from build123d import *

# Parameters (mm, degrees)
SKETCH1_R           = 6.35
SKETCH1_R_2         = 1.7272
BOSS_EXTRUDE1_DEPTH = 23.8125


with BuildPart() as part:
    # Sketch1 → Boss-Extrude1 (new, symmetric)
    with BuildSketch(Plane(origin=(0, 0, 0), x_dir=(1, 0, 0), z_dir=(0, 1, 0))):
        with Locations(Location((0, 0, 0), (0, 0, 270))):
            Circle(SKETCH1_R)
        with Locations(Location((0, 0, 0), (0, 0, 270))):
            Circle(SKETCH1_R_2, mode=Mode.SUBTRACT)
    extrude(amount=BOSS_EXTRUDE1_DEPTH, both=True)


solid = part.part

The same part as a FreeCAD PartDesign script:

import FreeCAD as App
import Part
import Sketcher
from FreeCAD import Vector
Q = App.Units.Quantity

doc = App.newDocument("Part")
params = doc.addObject("Spreadsheet::Sheet", "Params")
for row, (alias, value) in enumerate([
    ("sketch1_diameter", "0.5 in"),
    ("sketch1_diameter2", "0.136 in"),
    ("pad1_length", "1.875 in"),
], start=1):
    params.set(f"A{row}", alias)
    params.set(f"B{row}", "=" + value)
    params.setAlias(f"B{row}", alias)

body = doc.addObject("PartDesign::Body", "Body")

sketch1 = body.newObject("Sketcher::SketchObject", "Sketch")
sketch1.AttachmentSupport = (doc.getObject("XZ_Plane"), [""])
sketch1.MapMode = "FlatFace"
sketch1.addGeometry(Part.Circle(Vector(0, 0, 0), Vector(0, 0, 1), 6.3), False)
sketch1.addGeometry(Part.Circle(Vector(0, 0, 0), Vector(0, 0, 1), 1.7), False)
sketch1.addConstraint(Sketcher.Constraint("Coincident", 0, 3, -1, 1))
sketch1.addConstraint(Sketcher.Constraint("Coincident", 1, 3, -1, 1))
sketch1.addConstraint(Sketcher.Constraint("Diameter", 0, Q("0.5 in")))
sketch1.addConstraint(Sketcher.Constraint("Diameter", 1, Q("0.136 in")))
sketch1.setExpression("Constraints[2]", "Params.sketch1_diameter")
sketch1.setExpression("Constraints[3]", "Params.sketch1_diameter2")
pad1 = body.newObject("PartDesign::Pad", "Pad")
pad1.Profile = sketch1
pad1.setExpression("Length", "Params.pad1_length")
pad1.Midplane = True

doc.recompute()
